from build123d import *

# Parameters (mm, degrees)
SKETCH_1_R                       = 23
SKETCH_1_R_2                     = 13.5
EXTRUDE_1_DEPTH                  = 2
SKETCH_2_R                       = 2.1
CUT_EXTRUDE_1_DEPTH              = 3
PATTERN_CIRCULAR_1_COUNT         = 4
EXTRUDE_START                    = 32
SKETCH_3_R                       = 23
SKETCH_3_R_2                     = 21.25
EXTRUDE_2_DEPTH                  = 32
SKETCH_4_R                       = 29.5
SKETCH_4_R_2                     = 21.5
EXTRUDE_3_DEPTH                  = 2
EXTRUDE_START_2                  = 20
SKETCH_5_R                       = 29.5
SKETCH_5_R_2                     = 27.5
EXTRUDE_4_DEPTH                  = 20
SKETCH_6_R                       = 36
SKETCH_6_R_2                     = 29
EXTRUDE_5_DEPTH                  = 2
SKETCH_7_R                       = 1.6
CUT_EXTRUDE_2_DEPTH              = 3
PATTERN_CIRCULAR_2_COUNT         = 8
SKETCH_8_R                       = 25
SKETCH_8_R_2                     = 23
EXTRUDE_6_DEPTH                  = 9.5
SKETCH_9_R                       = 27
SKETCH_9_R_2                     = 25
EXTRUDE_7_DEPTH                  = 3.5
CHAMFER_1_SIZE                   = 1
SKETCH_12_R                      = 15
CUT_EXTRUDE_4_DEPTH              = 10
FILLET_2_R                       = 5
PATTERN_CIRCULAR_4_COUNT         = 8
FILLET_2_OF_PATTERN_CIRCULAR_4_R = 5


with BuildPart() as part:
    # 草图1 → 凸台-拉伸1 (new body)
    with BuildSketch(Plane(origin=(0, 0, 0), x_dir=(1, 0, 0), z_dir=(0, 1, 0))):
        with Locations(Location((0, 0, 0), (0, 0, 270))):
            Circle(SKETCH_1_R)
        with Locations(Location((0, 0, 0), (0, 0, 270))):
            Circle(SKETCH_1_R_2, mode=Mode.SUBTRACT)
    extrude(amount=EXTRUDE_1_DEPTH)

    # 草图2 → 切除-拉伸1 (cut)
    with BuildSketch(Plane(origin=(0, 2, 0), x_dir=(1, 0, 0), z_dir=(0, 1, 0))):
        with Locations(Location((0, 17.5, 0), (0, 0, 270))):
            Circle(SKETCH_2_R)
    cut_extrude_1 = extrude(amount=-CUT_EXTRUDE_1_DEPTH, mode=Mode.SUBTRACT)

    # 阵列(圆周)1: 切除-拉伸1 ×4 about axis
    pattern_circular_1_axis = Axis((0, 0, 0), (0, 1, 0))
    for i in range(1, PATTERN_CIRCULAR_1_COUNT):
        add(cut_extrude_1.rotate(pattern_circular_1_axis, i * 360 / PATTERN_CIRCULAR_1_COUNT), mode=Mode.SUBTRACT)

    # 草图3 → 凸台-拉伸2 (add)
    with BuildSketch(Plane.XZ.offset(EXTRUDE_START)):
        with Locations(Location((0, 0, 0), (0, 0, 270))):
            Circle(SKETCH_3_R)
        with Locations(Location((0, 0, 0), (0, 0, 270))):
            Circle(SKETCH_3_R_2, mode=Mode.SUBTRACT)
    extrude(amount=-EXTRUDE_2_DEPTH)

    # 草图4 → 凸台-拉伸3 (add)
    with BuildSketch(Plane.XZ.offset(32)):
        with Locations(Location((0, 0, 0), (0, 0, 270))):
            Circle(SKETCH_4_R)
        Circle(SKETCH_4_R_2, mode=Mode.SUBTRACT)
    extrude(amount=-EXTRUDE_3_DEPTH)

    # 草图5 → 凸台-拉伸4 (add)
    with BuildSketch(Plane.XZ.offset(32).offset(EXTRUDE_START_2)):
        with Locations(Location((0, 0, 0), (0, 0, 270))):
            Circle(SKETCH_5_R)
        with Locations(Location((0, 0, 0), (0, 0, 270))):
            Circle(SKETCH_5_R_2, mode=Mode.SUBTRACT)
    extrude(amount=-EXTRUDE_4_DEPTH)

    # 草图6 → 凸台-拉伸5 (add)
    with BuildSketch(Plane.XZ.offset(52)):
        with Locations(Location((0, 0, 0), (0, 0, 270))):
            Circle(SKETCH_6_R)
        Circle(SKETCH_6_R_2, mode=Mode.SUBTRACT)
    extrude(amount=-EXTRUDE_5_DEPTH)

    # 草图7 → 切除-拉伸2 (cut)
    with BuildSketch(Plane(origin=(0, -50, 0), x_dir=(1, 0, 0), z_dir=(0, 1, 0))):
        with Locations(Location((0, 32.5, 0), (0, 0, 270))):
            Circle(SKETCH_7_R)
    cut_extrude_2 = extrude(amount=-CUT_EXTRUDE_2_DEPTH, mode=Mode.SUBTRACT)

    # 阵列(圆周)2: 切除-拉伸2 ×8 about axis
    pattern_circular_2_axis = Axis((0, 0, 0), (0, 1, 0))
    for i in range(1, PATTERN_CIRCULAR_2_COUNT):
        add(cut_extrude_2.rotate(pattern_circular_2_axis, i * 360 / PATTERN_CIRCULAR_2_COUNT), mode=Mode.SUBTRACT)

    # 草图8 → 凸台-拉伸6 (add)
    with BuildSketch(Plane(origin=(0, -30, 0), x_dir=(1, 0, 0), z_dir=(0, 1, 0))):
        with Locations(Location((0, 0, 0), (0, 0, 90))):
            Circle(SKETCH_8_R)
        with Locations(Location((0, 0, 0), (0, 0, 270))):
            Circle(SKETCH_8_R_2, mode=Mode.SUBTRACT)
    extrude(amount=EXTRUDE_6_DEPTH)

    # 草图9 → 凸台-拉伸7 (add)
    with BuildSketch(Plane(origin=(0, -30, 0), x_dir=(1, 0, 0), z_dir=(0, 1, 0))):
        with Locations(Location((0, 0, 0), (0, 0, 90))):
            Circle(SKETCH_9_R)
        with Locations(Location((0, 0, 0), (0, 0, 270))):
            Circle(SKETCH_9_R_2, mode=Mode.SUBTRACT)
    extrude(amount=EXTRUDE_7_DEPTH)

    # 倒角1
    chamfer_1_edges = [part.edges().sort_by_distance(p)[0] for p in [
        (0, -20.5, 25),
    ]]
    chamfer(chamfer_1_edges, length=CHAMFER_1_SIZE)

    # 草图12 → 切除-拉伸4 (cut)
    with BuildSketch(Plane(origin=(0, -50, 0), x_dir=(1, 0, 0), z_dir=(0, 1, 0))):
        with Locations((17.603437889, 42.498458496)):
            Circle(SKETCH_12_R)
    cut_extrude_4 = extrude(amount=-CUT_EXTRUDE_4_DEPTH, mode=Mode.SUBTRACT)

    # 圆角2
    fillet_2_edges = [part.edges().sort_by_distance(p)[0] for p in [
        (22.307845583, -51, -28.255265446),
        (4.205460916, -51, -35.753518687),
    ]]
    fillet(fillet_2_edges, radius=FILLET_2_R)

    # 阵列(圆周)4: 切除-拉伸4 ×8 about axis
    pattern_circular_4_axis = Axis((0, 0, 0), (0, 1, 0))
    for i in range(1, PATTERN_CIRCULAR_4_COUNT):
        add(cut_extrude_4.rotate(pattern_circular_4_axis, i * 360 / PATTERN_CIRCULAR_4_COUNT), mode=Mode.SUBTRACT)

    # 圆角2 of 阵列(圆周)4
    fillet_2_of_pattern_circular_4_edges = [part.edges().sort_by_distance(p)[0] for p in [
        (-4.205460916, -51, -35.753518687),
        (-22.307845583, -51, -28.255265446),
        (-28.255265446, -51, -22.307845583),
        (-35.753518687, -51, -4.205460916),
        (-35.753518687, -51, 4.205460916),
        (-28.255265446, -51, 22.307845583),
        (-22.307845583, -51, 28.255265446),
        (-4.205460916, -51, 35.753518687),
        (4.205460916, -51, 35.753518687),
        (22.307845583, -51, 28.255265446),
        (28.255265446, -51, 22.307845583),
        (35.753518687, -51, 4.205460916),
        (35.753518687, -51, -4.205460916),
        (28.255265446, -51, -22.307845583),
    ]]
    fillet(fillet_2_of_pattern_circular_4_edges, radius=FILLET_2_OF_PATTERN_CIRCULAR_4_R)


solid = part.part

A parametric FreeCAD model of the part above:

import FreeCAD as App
import Part
import Sketcher

V = App.Vector


def edges_at(feature, points):
    """Names of the edges that pass closest to the given points."""
    edges = feature.Shape.Edges
    near = lambda p: min(range(len(edges)), key=lambda i: edges[i].distToShape(Part.Vertex(*p))[0])
    return sorted({f"Edge{near(p) + 1}" for p in points})

doc = App.newDocument("Part")
body = doc.addObject("PartDesign::Body", "Body")

# Sketch on XZ plane
sketch1 = body.newObject("Sketcher::SketchObject", "Sketch")
sketch1.AttachmentSupport = (doc.getObject("XZ_Plane"), [""])
sketch1.MapMode = "FlatFace"
sketch1.addGeometry([
    Part.Circle(V(0, 0, 0), V(0, 0, 1), 23),
    Part.Circle(V(0, 0, 0), V(0, 0, 1), 14),
], False)
sketch1.addConstraint([
    Sketcher.Constraint("Coincident", 0, 3, -1, 1),
    Sketcher.Constraint("Coincident", 1, 3, -1, 1),
    Sketcher.Constraint("Diameter", 0, 46.0),
    Sketcher.Constraint("Diameter", 1, 27.0),
])
pad1 = body.newObject("PartDesign::Pad", "Pad")
pad1.Profile = sketch1
pad1.Length = 2
pad1.Reversed = True

# Sketch on XZ plane
sketch2 = body.newObject("Sketcher::SketchObject", "Sketch001")
sketch2.AttachmentSupport = (doc.getObject("XZ_Plane"), [""])
sketch2.MapMode = "FlatFace"
sketch2.AttachmentOffset = App.Placement(V(0, 0, -2), App.Rotation())
sketch2.addGeometry(Part.Circle(V(0, -17.5, 0), V(0, 0, 1), 2.1), False)
sketch2.addConstraint([
    Sketcher.Constraint("PointOnObject", 0, 3, -2),
    Sketcher.Constraint("Diameter", 0, 4.2),
    Sketcher.Constraint("DistanceY", 0, 3, -1, 1, 17.5),
])
pocket1 = body.newObject("PartDesign::Pocket", "Pocket")
pocket1.Profile = sketch2
pocket1.Length = 3
pocket1.Reversed = True
doc.recompute()

polarpattern = body.newObject("PartDesign::PolarPattern", "PolarPattern")
polarpattern.Originals = [pocket1]
polarpattern.Axis = (doc.getObject("Y_Axis"), [""])
polarpattern.Angle = 360
polarpattern.Occurrences = 4
body.Tip = polarpattern

# Sketch on XZ plane
sketch3 = body.newObject("Sketcher::SketchObject", "Sketch002")
sketch3.AttachmentSupport = (doc.getObject("XZ_Plane"), [""])
sketch3.MapMode = "FlatFace"
sketch3.AttachmentOffset = App.Placement(V(0, 0, 32), App.Rotation())
sketch3.addGeometry([
    Part.Circle(V(0, 0, 0), V(0, 0, 1), 23),
    Part.Circle(V(0, 0, 0), V(0, 0, 1), 21),
], False)
sketch3.addConstraint([
    Sketcher.Constraint("Coincident", 0, 3, -1, 1),
    Sketcher.Constraint("Coincident", 1, 3, -1, 1),
    Sketcher.Constraint("Diameter", 0, 46.0),
    Sketcher.Constraint("Diameter", 1, 42.5),
])
pad2 = body.newObject("PartDesign::Pad", "Pad001")
pad2.Profile = sketch3
pad2.Length = 32
pad2.Reversed = True

# Sketch on XZ plane
sketch4 = body.newObject("Sketcher::SketchObject", "Sketch003")
sketch4.AttachmentSupport = (doc.getObject("XZ_Plane"), [""])
sketch4.MapMode = "FlatFace"
sketch4.AttachmentOffset = App.Placement(V(0, 0, 32), App.Rotation())
sketch4.addGeometry([
    Part.Circle(V(0, 0, 0), V(0, 0, 1), 30),
    Part.Circle(V(0, 0, 0), V(0, 0, 1), 22),
], False)
sketch4.addConstraint([
    Sketcher.Constraint("Coincident", 0, 3, -1, 1),
    Sketcher.Constraint("Coincident", 1, 3, -1, 1),
    Sketcher.Constraint("Diameter", 0, 59.0),
    Sketcher.Constraint("Diameter", 1, 43.0),
])
pad3 = body.newObject("PartDesign::Pad", "Pad002")
pad3.Profile = sketch4
pad3.Length = 2
pad3.Reversed = True

# Sketch on XZ plane
sketch5 = body.newObject("Sketcher::SketchObject", "Sketch004")
sketch5.AttachmentSupport = (doc.getObject("XZ_Plane"), [""])
sketch5.MapMode = "FlatFace"
sketch5.AttachmentOffset = App.Placement(V(0, 0, 52), App.Rotation())
sketch5.addGeometry([
    Part.Circle(V(0, 0, 0), V(0, 0, 1), 30),
    Part.Circle(V(0, 0, 0), V(0, 0, 1), 28),
], False)
sketch5.addConstraint([
    Sketcher.Constraint("Coincident", 0, 3, -1, 1),
    Sketcher.Constraint("Coincident", 1, 3, -1, 1),
    Sketcher.Constraint("Diameter", 0, 59.0),
    Sketcher.Constraint("Diameter", 1, 55.0),
])
pad4 = body.newObject("PartDesign::Pad", "Pad003")
pad4.Profile = sketch5
pad4.Length = 20
pad4.Reversed = True

# Sketch on XZ plane
sketch6 = body.newObject("Sketcher::SketchObject", "Sketch005")
sketch6.AttachmentSupport = (doc.getObject("XZ_Plane"), [""])
sketch6.MapMode = "FlatFace"
sketch6.AttachmentOffset = App.Placement(V(0, 0, 52), App.Rotation())
sketch6.addGeometry([
    Part.Circle(V(0, 0, 0), V(0, 0, 1), 36),
    Part.Circle(V(0, 0, 0), V(0, 0, 1), 29),
], False)
sketch6.addConstraint([
    Sketcher.Constraint("Coincident", 0, 3, -1, 1),
    Sketcher.Constraint("Coincident", 1, 3, -1, 1),
    Sketcher.Constraint("Diameter", 0, 72.0),
    Sketcher.Constraint("Diameter", 1, 58.0),
])
pad5 = body.newObject("PartDesign::Pad", "Pad004")
pad5.Profile = sketch6
pad5.Length = 2
pad5.Reversed = True

# Sketch on XZ plane
sketch7 = body.newObject("Sketcher::SketchObject", "Sketch006")
sketch7.AttachmentSupport = (doc.getObject("XZ_Plane"), [""])
sketch7.MapMode = "FlatFace"
sketch7.AttachmentOffset = App.Placement(V(0, 0, 50), App.Rotation())
sketch7.addGeometry(Part.Circle(V(0, -32.5, 0), V(0, 0, 1), 1.6), False)
sketch7.addConstraint([
    Sketcher.Constraint("PointOnObject", 0, 3, -2),
    Sketcher.Constraint("Diameter", 0, 3.2),
    Sketcher.Constraint("DistanceY", 0, 3, -1, 1, 32.5),
])
pocket2 = body.newObject("PartDesign::Pocket", "Pocket001")
pocket2.Profile = sketch7
pocket2.Length = 3
pocket2.Reversed = True
doc.recompute()

polarpattern2 = body.newObject("PartDesign::PolarPattern", "PolarPattern001")
polarpattern2.Originals = [pocket2]
polarpattern2.Axis = (doc.getObject("Y_Axis"), [""])
polarpattern2.Angle = 360
polarpattern2.Occurrences = 8
body.Tip = polarpattern2

# Sketch on XZ plane
sketch8 = body.newObject("Sketcher::SketchObject", "Sketch007")
sketch8.AttachmentSupport = (doc.getObject("XZ_Plane"), [""])
sketch8.MapMode = "FlatFace"
sketch8.AttachmentOffset = App.Placement(V(0, 0, 30), App.Rotation())
sketch8.addGeometry([
    Part.Circle(V(0, 0, 0), V(0, 0, 1), 25),
    Part.Circle(V(0, 0, 0), V(0, 0, 1), 23),
], False)
sketch8.addConstraint([
    Sketcher.Constraint("Coincident", 0, 3, -1, 1),
    Sketcher.Constraint("Coincident", 1, 3, -1, 1),
    Sketcher.Constraint("Diameter", 0, 50.0),
    Sketcher.Constraint("Diameter", 1, 46.0),
])
pad6 = body.newObject("PartDesign::Pad", "Pad005")
pad6.Profile = sketch8
pad6.Length = 9.5
pad6.Reversed = True

# Sketch on XZ plane
sketch9 = body.newObject("Sketcher::SketchObject", "Sketch008")
sketch9.AttachmentSupport = (doc.getObject("XZ_Plane"), [""])
sketch9.MapMode = "FlatFace"
sketch9.AttachmentOffset = App.Placement(V(0, 0, 30), App.Rotation())
sketch9.addGeometry([
    Part.Circle(V(0, 0, 0), V(0, 0, 1), 27),
    Part.Circle(V(0, 0, 0), V(0, 0, 1), 25),
], False)
sketch9.addConstraint([
    Sketcher.Constraint("Coincident", 0, 3, -1, 1),
    Sketcher.Constraint("Coincident", 1, 3, -1, 1),
    Sketcher.Constraint("Diameter", 0, 54.0),
    Sketcher.Constraint("Diameter", 1, 50.0),
])
pad7 = body.newObject("PartDesign::Pad", "Pad006")
pad7.Profile = sketch9
pad7.Length = 3.5
pad7.Reversed = True
doc.recompute()

chamfer = body.newObject("PartDesign::Chamfer", "Chamfer")
chamfer.Base = (pad7, edges_at(pad7, [(0, -20.5, 25)]))
chamfer.Size = 1

# Sketch on XZ plane
sketch10 = body.newObject("Sketcher::SketchObject", "Sketch009")
sketch10.AttachmentSupport = (doc.getObject("XZ_Plane"), [""])
sketch10.MapMode = "FlatFace"
sketch10.AttachmentOffset = App.Placement(V(0, 0, 50), App.Rotation())
sketch10.addGeometry(Part.Circle(V(18, -42, 0), V(0, 0, 1), 15), False)
sketch10.addConstraint([
    Sketcher.Constraint("Diameter", 0, 30.0),
    Sketcher.Constraint("DistanceY", 0, 3, -1, 1, 42.498458),
    Sketcher.Constraint("DistanceX", -1, 1, 0, 3, 17.603438),
])
pocket3 = body.newObject("PartDesign::Pocket", "Pocket002")
pocket3.Profile = sketch10
pocket3.Length = 10
pocket3.Reversed = True
doc.recompute()

fillet = body.newObject("PartDesign::Fillet", "Fillet")
fillet.Base = (pocket3, edges_at(pocket3, [(22.308, -51, -28.255), (4.205, -51, -35.754)]))
fillet.Radius = 5
doc.recompute()

polarpattern3 = body.newObject("PartDesign::PolarPattern", "PolarPattern002")
polarpattern3.Originals = [pocket3]
polarpattern3.Axis = (doc.getObject("Y_Axis"), [""])
polarpattern3.Angle = 360
polarpattern3.Occurrences = 8
body.Tip = polarpattern3
doc.recompute()

fillet2 = body.newObject("PartDesign::Fillet", "Fillet001")
fillet2.Base = (polarpattern3, edges_at(polarpattern3, [
    (-4.205, -51, -35.754),
    (-22.308, -51, -28.255),
    (-28.255, -51, -22.308),
    (-35.754, -51, -4.205),
    (-35.754, -51, 4.205),
    (-28.255, -51, 22.308),
    (-22.308, -51, 28.255),
    (-4.205, -51, 35.754),
    (4.205, -51, 35.754),
    (22.308, -51, 28.255),
    (28.255, -51, 22.308),
    (35.754, -51, 4.205),
    (35.754, -51, -4.205),
    (28.255, -51, -22.308),
]))
fillet2.Radius = 5

doc.recompute()
